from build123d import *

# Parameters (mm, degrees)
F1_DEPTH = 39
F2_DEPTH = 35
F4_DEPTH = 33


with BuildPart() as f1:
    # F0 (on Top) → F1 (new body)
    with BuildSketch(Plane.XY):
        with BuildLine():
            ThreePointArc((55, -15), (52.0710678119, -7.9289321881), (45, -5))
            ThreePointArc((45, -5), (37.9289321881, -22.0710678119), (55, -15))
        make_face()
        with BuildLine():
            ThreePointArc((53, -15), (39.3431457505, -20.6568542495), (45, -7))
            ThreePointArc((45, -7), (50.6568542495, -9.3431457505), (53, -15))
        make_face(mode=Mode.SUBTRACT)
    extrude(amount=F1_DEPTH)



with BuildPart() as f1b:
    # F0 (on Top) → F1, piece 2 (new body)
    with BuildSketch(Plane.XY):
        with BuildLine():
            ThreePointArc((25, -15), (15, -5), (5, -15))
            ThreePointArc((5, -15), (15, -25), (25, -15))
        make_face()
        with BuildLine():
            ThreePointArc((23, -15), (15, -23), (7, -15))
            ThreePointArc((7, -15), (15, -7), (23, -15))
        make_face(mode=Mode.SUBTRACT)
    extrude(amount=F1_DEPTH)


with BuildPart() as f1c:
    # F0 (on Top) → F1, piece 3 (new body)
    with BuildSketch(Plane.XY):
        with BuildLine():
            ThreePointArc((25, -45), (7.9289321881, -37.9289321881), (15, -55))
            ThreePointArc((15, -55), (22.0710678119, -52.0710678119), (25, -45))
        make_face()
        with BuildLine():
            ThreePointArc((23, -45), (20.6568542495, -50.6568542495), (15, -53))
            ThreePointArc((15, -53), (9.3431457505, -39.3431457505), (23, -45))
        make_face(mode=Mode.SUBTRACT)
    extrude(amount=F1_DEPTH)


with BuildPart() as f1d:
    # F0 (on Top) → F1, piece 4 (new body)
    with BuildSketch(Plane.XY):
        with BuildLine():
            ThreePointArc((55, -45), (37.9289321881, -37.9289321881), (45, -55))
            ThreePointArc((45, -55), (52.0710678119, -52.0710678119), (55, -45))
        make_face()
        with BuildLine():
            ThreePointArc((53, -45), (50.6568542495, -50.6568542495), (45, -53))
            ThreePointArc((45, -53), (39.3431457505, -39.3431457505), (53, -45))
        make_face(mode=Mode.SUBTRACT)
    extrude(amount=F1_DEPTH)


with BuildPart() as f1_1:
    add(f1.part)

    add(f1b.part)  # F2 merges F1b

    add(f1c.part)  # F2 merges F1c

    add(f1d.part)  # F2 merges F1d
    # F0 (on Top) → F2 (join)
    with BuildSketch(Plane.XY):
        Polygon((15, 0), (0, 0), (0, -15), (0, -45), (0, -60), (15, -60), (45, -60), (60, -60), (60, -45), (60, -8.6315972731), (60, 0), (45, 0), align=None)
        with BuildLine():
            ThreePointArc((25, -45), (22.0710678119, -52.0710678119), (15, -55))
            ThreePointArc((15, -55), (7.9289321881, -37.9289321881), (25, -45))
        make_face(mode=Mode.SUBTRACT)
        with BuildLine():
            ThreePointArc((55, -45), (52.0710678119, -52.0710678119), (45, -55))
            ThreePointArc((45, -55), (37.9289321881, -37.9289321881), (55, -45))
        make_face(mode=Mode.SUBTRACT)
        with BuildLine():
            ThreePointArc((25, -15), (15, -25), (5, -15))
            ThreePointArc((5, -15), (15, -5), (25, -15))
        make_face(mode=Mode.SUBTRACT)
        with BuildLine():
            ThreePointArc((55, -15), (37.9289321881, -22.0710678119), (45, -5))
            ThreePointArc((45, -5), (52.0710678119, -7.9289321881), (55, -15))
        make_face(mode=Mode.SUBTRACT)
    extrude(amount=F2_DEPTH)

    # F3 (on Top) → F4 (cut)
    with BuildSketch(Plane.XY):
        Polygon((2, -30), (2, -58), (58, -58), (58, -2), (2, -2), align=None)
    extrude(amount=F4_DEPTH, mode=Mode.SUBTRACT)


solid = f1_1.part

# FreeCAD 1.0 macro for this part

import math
import FreeCAD as App
import Part
import Sketcher
Q = App.Units.Quantity


def add_polygon(sketch, points):
    """Adds a closed chain of lines whose ends are joined by coincident constraints."""
    first, n = sketch.GeometryCount, len(points)
    for a, b in zip(points, points[1:] + points[:1]):
        sketch.addGeometry(Part.LineSegment(App.Vector(*a, 0), App.Vector(*b, 0)), False)
    for i in range(n):
        sketch.addConstraint(Sketcher.Constraint("Coincident", first + i, 2, first + (i + 1) % n, 1))

doc = App.newDocument("Part")
body = doc.addObject("PartDesign::Body", "Body")

sketch1 = doc.addObject("Sketcher::SketchObject", "Sketch")
body.addObject(sketch1)
sketch1.AttachmentSupport = (doc.XY_Plane, [""])
sketch1.MapMode = "FlatFace"
sketch1.addGeometry([
    Part.ArcOfCircle(Part.Circle(App.Vector(45, -15, 0), App.Vector(0, 0, 1), 10), math.radians(0), math.radians(90)),
    Part.ArcOfCircle(Part.Circle(App.Vector(45, -15, 0), App.Vector(0, 0, 1), 10), math.radians(90), math.radians(360)),
    Part.ArcOfCircle(Part.Circle(App.Vector(45, -15, 0), App.Vector(0, 0, 1), 8), math.radians(0), math.radians(90)),
    Part.ArcOfCircle(Part.Circle(App.Vector(45, -15, 0), App.Vector(0, 0, 1), 8), math.radians(90), math.radians(360)),
], False)
sketch1.addConstraint([
    Sketcher.Constraint("Tangent", 0, 1, 1, 2),
    Sketcher.Constraint("Coincident", 1, 1, 0, 2),
    Sketcher.Constraint("Tangent", 2, 1, 3, 2),
    Sketcher.Constraint("Coincident", 3, 1, 2, 2),
    Sketcher.Constraint("Coincident", 2, 3, 0, 3),
    Sketcher.Constraint("Horizontal", 3, 3, 0, 1),
    Sketcher.Constraint("Horizontal", 0, 1, 2, 1),
    Sketcher.Constraint("Vertical", 3, 3, 1, 1),
    Sketcher.Constraint("Vertical", 1, 1, 3, 1),
    Sketcher.Constraint("Radius", 0, Q("10 mm")),
    Sketcher.Constraint("Radius", 2, Q("8 mm")),
    Sketcher.Constraint("DistanceX", -1, 1, 0, 3, Q("45 mm")),
    Sketcher.Constraint("DistanceY", 0, 3, -1, 1, Q("15 mm")),
])
pad1 = doc.addObject("PartDesign::Pad", "Pad")
body.addObject(pad1)
pad1.Profile = sketch1
pad1.Length = 39
body2 = doc.addObject("PartDesign::Body", "Body001")

sketch2 = doc.addObject("Sketcher::SketchObject", "Sketch001")
body2.addObject(sketch2)
sketch2.AttachmentSupport = (doc.getObject("XY_Plane001"), [""])
sketch2.MapMode = "FlatFace"
sketch2.addGeometry([
    Part.Circle(App.Vector(15, -15, 0), App.Vector(0, 0, 1), 10),
    Part.Circle(App.Vector(15, -15, 0), App.Vector(0, 0, 1), 8),
], False)
sketch2.addConstraint([
    Sketcher.Constraint("Coincident", 1, 3, 0, 3),
    Sketcher.Constraint("Diameter", 0, Q("20 mm")),
    Sketcher.Constraint("Diameter", 1, Q("16 mm")),
    Sketcher.Constraint("DistanceX", -1, 1, 0, 3, Q("15 mm")),
    Sketcher.Constraint("DistanceY", 0, 3, -1, 1, Q("15 mm")),
])
pad2 = doc.addObject("PartDesign::Pad", "Pad001")
body2.addObject(pad2)
pad2.Profile = sketch2
pad2.Length = 39
body3 = doc.addObject("PartDesign::Body", "Body002")

sketch3 = doc.addObject("Sketcher::SketchObject", "Sketch002")
body3.addObject(sketch3)
sketch3.AttachmentSupport = (doc.getObject("XY_Plane002"), [""])
sketch3.MapMode = "FlatFace"
sketch3.addGeometry([
    Part.ArcOfCircle(Part.Circle(App.Vector(15, -45, 0), App.Vector(0, 0, 1), 10), math.radians(0), math.radians(270)),
    Part.ArcOfCircle(Part.Circle(App.Vector(15, -45, 0), App.Vector(0, 0, 1), 10), math.radians(-90), math.radians(0)),
    Part.ArcOfCircle(Part.Circle(App.Vector(15, -45, 0), App.Vector(0, 0, 1), 8), math.radians(0), math.radians(270)),
    Part.ArcOfCircle(Part.Circle(App.Vector(15, -45, 0), App.Vector(0, 0, 1), 8), math.radians(-90), math.radians(0)),
], False)
sketch3.addConstraint([
    Sketcher.Constraint("Tangent", 0, 1, 1, 2),
    Sketcher.Constraint("Coincident", 1, 1, 0, 2),
    Sketcher.Constraint("Tangent", 2, 1, 3, 2),
    Sketcher.Constraint("Coincident", 3, 1, 2, 2),
    Sketcher.Constraint("Coincident", 2, 3, 0, 3),
    Sketcher.Constraint("Horizontal", 3, 3, 0, 1),
    Sketcher.Constraint("Horizontal", 0, 1, 2, 1),
    Sketcher.Constraint("Vertical", 3, 3, 1, 1),
    Sketcher.Constraint("Vertical", 1, 1, 3, 1),
    Sketcher.Constraint("Radius", 0, Q("10 mm")),
    Sketcher.Constraint("Radius", 2, Q("8 mm")),
    Sketcher.Constraint("DistanceX", -1, 1, 0, 3, Q("15 mm")),
    Sketcher.Constraint("DistanceY", 0, 3, -1, 1, Q("45 mm")),
])
pad3 = doc.addObject("PartDesign::Pad", "Pad002")
body3.addObject(pad3)
pad3.Profile = sketch3
pad3.Length = 39
body4 = doc.addObject("PartDesign::Body", "Body003")

sketch4 = doc.addObject("Sketcher::SketchObject", "Sketch003")
body4.addObject(sketch4)
sketch4.AttachmentSupport = (doc.getObject("XY_Plane003"), [""])
sketch4.MapMode = "FlatFace"
sketch4.addGeometry([
    Part.ArcOfCircle(Part.Circle(App.Vector(45, -45, 0), App.Vector(0, 0, 1), 10), math.radians(0), math.radians(270)),
    Part.ArcOfCircle(Part.Circle(App.Vector(45, -45, 0), App.Vector(0, 0, 1), 10), math.radians(-90), math.radians(0)),
    Part.ArcOfCircle(Part.Circle(App.Vector(45, -45, 0), App.Vector(0, 0, 1), 8), math.radians(0), math.radians(270)),
    Part.ArcOfCircle(Part.Circle(App.Vector(45, -45, 0), App.Vector(0, 0, 1), 8), math.radians(-90), math.radians(0)),
], False)
sketch4.addConstraint([
    Sketcher.Constraint("Tangent", 0, 1, 1, 2),
    Sketcher.Constraint("Coincident", 1, 1, 0, 2),
    Sketcher.Constraint("Tangent", 2, 1, 3, 2),
    Sketcher.Constraint("Coincident", 3, 1, 2, 2),
    Sketcher.Constraint("Coincident", 2, 3, 0, 3),
    Sketcher.Constraint("Horizontal", 3, 3, 0, 1),
    Sketcher.Constraint("Horizontal", 0, 1, 2, 1),
    Sketcher.Constraint("Vertical", 3, 3, 1, 1),
    Sketcher.Constraint("Vertical", 1, 1, 3, 1),
    Sketcher.Constraint("Radius", 0, Q("10 mm")),
    Sketcher.Constraint("Radius", 2, Q("8 mm")),
    Sketcher.Constraint("DistanceX", -1, 1, 0, 3, Q("45 mm")),
    Sketcher.Constraint("DistanceY", 0, 3, -1, 1, Q("45 mm")),
])
pad4 = doc.addObject("PartDesign::Pad", "Pad003")
body4.addObject(pad4)
pad4.Profile = sketch4
pad4.Length = 39
body.AllowCompound = True
doc.recompute()

boolean = doc.addObject("PartDesign::Boolean", "Boolean")
body.addObject(boolean)
boolean.Type = "Fuse"
boolean.addObjects([body2])
doc.recompute()

boolean2 = doc.addObject("PartDesign::Boolean", "Boolean001")
body.addObject(boolean2)
boolean2.Type = "Fuse"
boolean2.addObjects([body3])
doc.recompute()

boolean3 = doc.addObject("PartDesign::Boolean", "Boolean002")
body.addObject(boolean3)
boolean3.Type = "Fuse"
boolean3.addObjects([body4])

sketch5 = doc.addObject("Sketcher::SketchObject", "Sketch004")
body.addObject(sketch5)
sketch5.AttachmentSupport = (doc.XY_Plane, [""])
sketch5.MapMode = "FlatFace"
add_polygon(sketch5, [(0, 0), (0, -60), (60, -60), (60, 0)])
sketch5.addGeometry(Part.ArcOfCircle(Part.Circle(App.Vector(15, -45, 0), App.Vector(0, 0, 1), 10), math.radians(0), math.radians(270)), False)
sketch5.addGeometry(Part.ArcOfCircle(Part.Circle(App.Vector(15, -45, 0), App.Vector(0, 0, 1), 10), math.radians(-90), math.radians(0)), False)
sketch5.addGeometry(Part.ArcOfCircle(Part.Circle(App.Vector(45, -45, 0), App.Vector(0, 0, 1), 10), math.radians(0), math.radians(270)), False)
sketch5.addGeometry(Part.ArcOfCircle(Part.Circle(App.Vector(45, -45, 0), App.Vector(0, 0, 1), 10), math.radians(-90), math.radians(0)), False)
sketch5.addGeometry(Part.Circle(App.Vector(15, -15, 0), App.Vector(0, 0, 1), 10), False)
sketch5.addGeometry(Part.ArcOfCircle(Part.Circle(App.Vector(45, -15, 0), App.Vector(0, 0, 1), 10), math.radians(0), math.radians(90)), False)
sketch5.addGeometry(Part.ArcOfCircle(Part.Circle(App.Vector(45, -15, 0), App.Vector(0, 0, 1), 10), math.radians(90), math.radians(360)), False)
sketch5.addConstraint([
    Sketcher.Constraint("Tangent", 4, 1, 5, 2),
    Sketcher.Constraint("Coincident", 5, 1, 4, 2),
    Sketcher.Constraint("Tangent", 6, 1, 7, 2),
    Sketcher.Constraint("Coincident", 7, 1, 6, 2),
    Sketcher.Constraint("Tangent", 9, 1, 10, 2),
    Sketcher.Constraint("Coincident", 10, 1, 9, 2),
    Sketcher.Constraint("Vertical", 0),
    Sketcher.Constraint("Horizontal", 1),
    Sketcher.Constraint("Vertical", 2),
    Sketcher.Constraint("Horizontal", 3),
    Sketcher.Constraint("Coincident", 3, 2, -1, 1),
    Sketcher.Constraint("Equal", 5, 6),
    Sketcher.Constraint("Equal", 7, 8),
    Sketcher.Constraint("Equal", 8, 9),
    Sketcher.Constraint("Horizontal", 5, 3, 6, 3),
    Sketcher.Constraint("Horizontal", 8, 3, 9, 3),
    Sketcher.Constraint("Horizontal", 7, 3, 4, 1),
    Sketcher.Constraint("Horizontal", 4, 1, 6, 1),
    Sketcher.Constraint("Horizontal", 10, 3, 9, 1),
    Sketcher.Constraint("Vertical", 5, 3, 8, 3),
    Sketcher.Constraint("Vertical", 7, 3, 9, 3),
    Sketcher.Constraint("Vertical", 8, 3, 5, 1),
    Sketcher.Constraint("Vertical", 10, 3, 7, 1),
    Sketcher.Constraint("Vertical", 7, 1, 10, 1),
    Sketcher.Constraint("Equal", 3, 0),
    Sketcher.Constraint("Diameter", 8, Q("20 mm")),
    Sketcher.Constraint("DistanceX", 1, 1, 1, 2, Q("60 mm")),
    Sketcher.Constraint("DistanceX", -1, 1, 4, 3, Q("15 mm")),
    Sketcher.Constraint("DistanceY", 4, 3, -1, 1, Q("45 mm")),
    Sketcher.Constraint("DistanceX", -1, 1, 6, 3, Q("45 mm")),
    Sketcher.Constraint("DistanceY", 8, 3, -1, 1, Q("15 mm")),
])
pad5 = doc.addObject("PartDesign::Pad", "Pad004")
body.addObject(pad5)
pad5.Profile = sketch5
pad5.Length = 35

sketch6 = doc.addObject("Sketcher::SketchObject", "Sketch005")
body.addObject(sketch6)
sketch6.AttachmentSupport = (doc.XY_Plane, [""])
sketch6.MapMode = "FlatFace"
add_polygon(sketch6, [(2, -58), (58, -58), (58, -2), (2, -2)])
sketch6.addConstraint([
    Sketcher.Constraint("Horizontal", 0),
    Sketcher.Constraint("Vertical", 1),
    Sketcher.Constraint("Horizontal", 2),
    Sketcher.Constraint("Vertical", 3),
    Sketcher.Constraint("Equal", 2, 1),
    Sketcher.Constraint("DistanceX", 0, 1, 0, 2, Q("56 mm")),
    Sketcher.Constraint("DistanceX", -1, 1, 0, 2, Q("58 mm")),
    Sketcher.Constraint("DistanceY", 0, 2, -1, 1, Q("58 mm")),
])
pocket1 = doc.addObject("PartDesign::Pocket", "Pocket")
body.addObject(pocket1)
pocket1.Profile = sketch6
pocket1.Length = 33
pocket1.Reversed = True

doc.recompute()
